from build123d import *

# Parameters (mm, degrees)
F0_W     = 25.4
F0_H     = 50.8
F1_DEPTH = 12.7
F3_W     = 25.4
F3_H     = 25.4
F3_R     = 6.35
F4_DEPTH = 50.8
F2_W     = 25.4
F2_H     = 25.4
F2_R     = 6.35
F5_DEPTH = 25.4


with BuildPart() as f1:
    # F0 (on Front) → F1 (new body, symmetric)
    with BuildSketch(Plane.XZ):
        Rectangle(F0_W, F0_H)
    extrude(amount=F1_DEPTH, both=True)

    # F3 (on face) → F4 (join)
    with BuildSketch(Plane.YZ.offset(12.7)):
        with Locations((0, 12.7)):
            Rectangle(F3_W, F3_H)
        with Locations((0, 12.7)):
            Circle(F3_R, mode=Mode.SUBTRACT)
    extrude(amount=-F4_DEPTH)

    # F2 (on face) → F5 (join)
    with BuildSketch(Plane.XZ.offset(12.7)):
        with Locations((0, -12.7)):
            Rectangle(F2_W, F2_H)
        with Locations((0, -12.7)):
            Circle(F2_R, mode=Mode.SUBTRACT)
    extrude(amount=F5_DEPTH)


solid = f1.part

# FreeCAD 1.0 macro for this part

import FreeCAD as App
import Part
import Sketcher

V = App.Vector
Q = App.Units.Quantity


def add_polygon(sketch, points):
    """Adds a closed chain of lines whose ends are joined by coincident constraints."""
    first, n = sketch.GeometryCount, len(points)
    for a, b in zip(points, points[1:] + points[:1]):
        sketch.addGeometry(Part.LineSegment(App.Vector(*a, 0), App.Vector(*b, 0)), False)
    for i in range(n):
        sketch.addConstraint(Sketcher.Constraint("Coincident", first + i, 2, first + (i + 1) % n, 1))

doc = App.newDocument("Part")
body = doc.addObject("PartDesign::Body", "Body")

# Sketch on XZ plane
sketch1 = body.newObject("Sketcher::SketchObject", "Sketch")
sketch1.AttachmentSupport = (doc.getObject("XZ_Plane"), [""])
sketch1.MapMode = "FlatFace"
add_polygon(sketch1, [(-12.7, 25.4), (-12.7, -25.4), (12.7, -25.4), (12.7, 25.4)])  # lines 0-3
sketch1.addConstraint(Sketcher.Constraint("Vertical", 0))
sketch1.addConstraint(Sketcher.Constraint("Horizontal", 1))
sketch1.addConstraint(Sketcher.Constraint("Vertical", 2))
sketch1.addConstraint(Sketcher.Constraint("Horizontal", 3))
sketch1.addConstraint(Sketcher.Constraint("Symmetric", 0, 2, 2, 2, -1, 1))
sketch1.addConstraint(Sketcher.Constraint("DistanceX", 1, 1, 1, 2, Q("1 in")))
sketch1.addConstraint(Sketcher.Constraint("DistanceY", 0, 2, 0, 1, Q("2 in")))
pad1 = body.newObject("PartDesign::Pad", "Pad")
pad1.Profile = sketch1
pad1.Length = Q("1 in")
pad1.Midplane = True

# Sketch on YZ plane
sketch2 = body.newObject("Sketcher::SketchObject", "Sketch001")
sketch2.AttachmentSupport = (doc.getObject("YZ_Plane"), [""])
sketch2.MapMode = "FlatFace"
sketch2.AttachmentOffset = App.Placement(V(0, 0, 0.5 * 25.4), App.Rotation())
add_polygon(sketch2, [(-12.7, 25.4), (-12.7, 0), (12.7, 0), (12.7, 25.4)])  # lines 0-3
sketch2.addGeometry(Part.Circle(V(0, 12.7, 0), V(0, 0, 1), 6.35), False)  # 4
sketch2.addConstraint(Sketcher.Constraint("Vertical", 0))
sketch2.addConstraint(Sketcher.Constraint("Horizontal", 1))
sketch2.addConstraint(Sketcher.Constraint("Vertical", 2))
sketch2.addConstraint(Sketcher.Constraint("Horizontal", 3))
sketch2.addConstraint(Sketcher.Constraint("Symmetric", 0, 2, 1, 2, -1, 1))
sketch2.addConstraint(Sketcher.Constraint("PointOnObject", 4, 3, -2))
sketch2.addConstraint(Sketcher.Constraint("Equal", 3, 0))
sketch2.addConstraint(Sketcher.Constraint("Diameter", 4, Q("0.5 in")))
sketch2.addConstraint(Sketcher.Constraint("DistanceX", 1, 1, 1, 2, Q("1 in")))
sketch2.addConstraint(Sketcher.Constraint("DistanceY", -1, 1, 4, 3, Q("0.5 in")))
pad2 = body.newObject("PartDesign::Pad", "Pad001")
pad2.Profile = sketch2
pad2.Length = Q("2 in")
pad2.Reversed = True

# Sketch on XZ plane
sketch3 = body.newObject("Sketcher::SketchObject", "Sketch002")
sketch3.AttachmentSupport = (doc.getObject("XZ_Plane"), [""])
sketch3.MapMode = "FlatFace"
sketch3.AttachmentOffset = App.Placement(V(0, 0, 0.5 * 25.4), App.Rotation())
add_polygon(sketch3, [(-12.7, 0), (-12.7, -25.4), (12.7, -25.4), (12.7, 0)])  # lines 0-3
sketch3.addGeometry(Part.Circle(V(0, -12.7, 0), V(0, 0, 1), 6.35), False)  # 4
sketch3.addConstraint(Sketcher.Constraint("Vertical", 0))
sketch3.addConstraint(Sketcher.Constraint("Horizontal", 1))
sketch3.addConstraint(Sketcher.Constraint("Vertical", 2))
sketch3.addConstraint(Sketcher.Constraint("Horizontal", 3))
sketch3.addConstraint(Sketcher.Constraint("Symmetric", 2, 2, 3, 2, -1, 1))
sketch3.addConstraint(Sketcher.Constraint("PointOnObject", 4, 3, -2))
sketch3.addConstraint(Sketcher.Constraint("Equal", 3, 0))
sketch3.addConstraint(Sketcher.Constraint("Diameter", 4, Q("0.5 in")))
sketch3.addConstraint(Sketcher.Constraint("DistanceX", 1, 1, 1, 2, Q("1 in")))
sketch3.addConstraint(Sketcher.Constraint("DistanceY", 4, 3, -1, 1, Q("0.5 in")))
pad3 = body.newObject("PartDesign::Pad", "Pad002")
pad3.Profile = sketch3
pad3.Length = Q("1 in")

doc.recompute()
